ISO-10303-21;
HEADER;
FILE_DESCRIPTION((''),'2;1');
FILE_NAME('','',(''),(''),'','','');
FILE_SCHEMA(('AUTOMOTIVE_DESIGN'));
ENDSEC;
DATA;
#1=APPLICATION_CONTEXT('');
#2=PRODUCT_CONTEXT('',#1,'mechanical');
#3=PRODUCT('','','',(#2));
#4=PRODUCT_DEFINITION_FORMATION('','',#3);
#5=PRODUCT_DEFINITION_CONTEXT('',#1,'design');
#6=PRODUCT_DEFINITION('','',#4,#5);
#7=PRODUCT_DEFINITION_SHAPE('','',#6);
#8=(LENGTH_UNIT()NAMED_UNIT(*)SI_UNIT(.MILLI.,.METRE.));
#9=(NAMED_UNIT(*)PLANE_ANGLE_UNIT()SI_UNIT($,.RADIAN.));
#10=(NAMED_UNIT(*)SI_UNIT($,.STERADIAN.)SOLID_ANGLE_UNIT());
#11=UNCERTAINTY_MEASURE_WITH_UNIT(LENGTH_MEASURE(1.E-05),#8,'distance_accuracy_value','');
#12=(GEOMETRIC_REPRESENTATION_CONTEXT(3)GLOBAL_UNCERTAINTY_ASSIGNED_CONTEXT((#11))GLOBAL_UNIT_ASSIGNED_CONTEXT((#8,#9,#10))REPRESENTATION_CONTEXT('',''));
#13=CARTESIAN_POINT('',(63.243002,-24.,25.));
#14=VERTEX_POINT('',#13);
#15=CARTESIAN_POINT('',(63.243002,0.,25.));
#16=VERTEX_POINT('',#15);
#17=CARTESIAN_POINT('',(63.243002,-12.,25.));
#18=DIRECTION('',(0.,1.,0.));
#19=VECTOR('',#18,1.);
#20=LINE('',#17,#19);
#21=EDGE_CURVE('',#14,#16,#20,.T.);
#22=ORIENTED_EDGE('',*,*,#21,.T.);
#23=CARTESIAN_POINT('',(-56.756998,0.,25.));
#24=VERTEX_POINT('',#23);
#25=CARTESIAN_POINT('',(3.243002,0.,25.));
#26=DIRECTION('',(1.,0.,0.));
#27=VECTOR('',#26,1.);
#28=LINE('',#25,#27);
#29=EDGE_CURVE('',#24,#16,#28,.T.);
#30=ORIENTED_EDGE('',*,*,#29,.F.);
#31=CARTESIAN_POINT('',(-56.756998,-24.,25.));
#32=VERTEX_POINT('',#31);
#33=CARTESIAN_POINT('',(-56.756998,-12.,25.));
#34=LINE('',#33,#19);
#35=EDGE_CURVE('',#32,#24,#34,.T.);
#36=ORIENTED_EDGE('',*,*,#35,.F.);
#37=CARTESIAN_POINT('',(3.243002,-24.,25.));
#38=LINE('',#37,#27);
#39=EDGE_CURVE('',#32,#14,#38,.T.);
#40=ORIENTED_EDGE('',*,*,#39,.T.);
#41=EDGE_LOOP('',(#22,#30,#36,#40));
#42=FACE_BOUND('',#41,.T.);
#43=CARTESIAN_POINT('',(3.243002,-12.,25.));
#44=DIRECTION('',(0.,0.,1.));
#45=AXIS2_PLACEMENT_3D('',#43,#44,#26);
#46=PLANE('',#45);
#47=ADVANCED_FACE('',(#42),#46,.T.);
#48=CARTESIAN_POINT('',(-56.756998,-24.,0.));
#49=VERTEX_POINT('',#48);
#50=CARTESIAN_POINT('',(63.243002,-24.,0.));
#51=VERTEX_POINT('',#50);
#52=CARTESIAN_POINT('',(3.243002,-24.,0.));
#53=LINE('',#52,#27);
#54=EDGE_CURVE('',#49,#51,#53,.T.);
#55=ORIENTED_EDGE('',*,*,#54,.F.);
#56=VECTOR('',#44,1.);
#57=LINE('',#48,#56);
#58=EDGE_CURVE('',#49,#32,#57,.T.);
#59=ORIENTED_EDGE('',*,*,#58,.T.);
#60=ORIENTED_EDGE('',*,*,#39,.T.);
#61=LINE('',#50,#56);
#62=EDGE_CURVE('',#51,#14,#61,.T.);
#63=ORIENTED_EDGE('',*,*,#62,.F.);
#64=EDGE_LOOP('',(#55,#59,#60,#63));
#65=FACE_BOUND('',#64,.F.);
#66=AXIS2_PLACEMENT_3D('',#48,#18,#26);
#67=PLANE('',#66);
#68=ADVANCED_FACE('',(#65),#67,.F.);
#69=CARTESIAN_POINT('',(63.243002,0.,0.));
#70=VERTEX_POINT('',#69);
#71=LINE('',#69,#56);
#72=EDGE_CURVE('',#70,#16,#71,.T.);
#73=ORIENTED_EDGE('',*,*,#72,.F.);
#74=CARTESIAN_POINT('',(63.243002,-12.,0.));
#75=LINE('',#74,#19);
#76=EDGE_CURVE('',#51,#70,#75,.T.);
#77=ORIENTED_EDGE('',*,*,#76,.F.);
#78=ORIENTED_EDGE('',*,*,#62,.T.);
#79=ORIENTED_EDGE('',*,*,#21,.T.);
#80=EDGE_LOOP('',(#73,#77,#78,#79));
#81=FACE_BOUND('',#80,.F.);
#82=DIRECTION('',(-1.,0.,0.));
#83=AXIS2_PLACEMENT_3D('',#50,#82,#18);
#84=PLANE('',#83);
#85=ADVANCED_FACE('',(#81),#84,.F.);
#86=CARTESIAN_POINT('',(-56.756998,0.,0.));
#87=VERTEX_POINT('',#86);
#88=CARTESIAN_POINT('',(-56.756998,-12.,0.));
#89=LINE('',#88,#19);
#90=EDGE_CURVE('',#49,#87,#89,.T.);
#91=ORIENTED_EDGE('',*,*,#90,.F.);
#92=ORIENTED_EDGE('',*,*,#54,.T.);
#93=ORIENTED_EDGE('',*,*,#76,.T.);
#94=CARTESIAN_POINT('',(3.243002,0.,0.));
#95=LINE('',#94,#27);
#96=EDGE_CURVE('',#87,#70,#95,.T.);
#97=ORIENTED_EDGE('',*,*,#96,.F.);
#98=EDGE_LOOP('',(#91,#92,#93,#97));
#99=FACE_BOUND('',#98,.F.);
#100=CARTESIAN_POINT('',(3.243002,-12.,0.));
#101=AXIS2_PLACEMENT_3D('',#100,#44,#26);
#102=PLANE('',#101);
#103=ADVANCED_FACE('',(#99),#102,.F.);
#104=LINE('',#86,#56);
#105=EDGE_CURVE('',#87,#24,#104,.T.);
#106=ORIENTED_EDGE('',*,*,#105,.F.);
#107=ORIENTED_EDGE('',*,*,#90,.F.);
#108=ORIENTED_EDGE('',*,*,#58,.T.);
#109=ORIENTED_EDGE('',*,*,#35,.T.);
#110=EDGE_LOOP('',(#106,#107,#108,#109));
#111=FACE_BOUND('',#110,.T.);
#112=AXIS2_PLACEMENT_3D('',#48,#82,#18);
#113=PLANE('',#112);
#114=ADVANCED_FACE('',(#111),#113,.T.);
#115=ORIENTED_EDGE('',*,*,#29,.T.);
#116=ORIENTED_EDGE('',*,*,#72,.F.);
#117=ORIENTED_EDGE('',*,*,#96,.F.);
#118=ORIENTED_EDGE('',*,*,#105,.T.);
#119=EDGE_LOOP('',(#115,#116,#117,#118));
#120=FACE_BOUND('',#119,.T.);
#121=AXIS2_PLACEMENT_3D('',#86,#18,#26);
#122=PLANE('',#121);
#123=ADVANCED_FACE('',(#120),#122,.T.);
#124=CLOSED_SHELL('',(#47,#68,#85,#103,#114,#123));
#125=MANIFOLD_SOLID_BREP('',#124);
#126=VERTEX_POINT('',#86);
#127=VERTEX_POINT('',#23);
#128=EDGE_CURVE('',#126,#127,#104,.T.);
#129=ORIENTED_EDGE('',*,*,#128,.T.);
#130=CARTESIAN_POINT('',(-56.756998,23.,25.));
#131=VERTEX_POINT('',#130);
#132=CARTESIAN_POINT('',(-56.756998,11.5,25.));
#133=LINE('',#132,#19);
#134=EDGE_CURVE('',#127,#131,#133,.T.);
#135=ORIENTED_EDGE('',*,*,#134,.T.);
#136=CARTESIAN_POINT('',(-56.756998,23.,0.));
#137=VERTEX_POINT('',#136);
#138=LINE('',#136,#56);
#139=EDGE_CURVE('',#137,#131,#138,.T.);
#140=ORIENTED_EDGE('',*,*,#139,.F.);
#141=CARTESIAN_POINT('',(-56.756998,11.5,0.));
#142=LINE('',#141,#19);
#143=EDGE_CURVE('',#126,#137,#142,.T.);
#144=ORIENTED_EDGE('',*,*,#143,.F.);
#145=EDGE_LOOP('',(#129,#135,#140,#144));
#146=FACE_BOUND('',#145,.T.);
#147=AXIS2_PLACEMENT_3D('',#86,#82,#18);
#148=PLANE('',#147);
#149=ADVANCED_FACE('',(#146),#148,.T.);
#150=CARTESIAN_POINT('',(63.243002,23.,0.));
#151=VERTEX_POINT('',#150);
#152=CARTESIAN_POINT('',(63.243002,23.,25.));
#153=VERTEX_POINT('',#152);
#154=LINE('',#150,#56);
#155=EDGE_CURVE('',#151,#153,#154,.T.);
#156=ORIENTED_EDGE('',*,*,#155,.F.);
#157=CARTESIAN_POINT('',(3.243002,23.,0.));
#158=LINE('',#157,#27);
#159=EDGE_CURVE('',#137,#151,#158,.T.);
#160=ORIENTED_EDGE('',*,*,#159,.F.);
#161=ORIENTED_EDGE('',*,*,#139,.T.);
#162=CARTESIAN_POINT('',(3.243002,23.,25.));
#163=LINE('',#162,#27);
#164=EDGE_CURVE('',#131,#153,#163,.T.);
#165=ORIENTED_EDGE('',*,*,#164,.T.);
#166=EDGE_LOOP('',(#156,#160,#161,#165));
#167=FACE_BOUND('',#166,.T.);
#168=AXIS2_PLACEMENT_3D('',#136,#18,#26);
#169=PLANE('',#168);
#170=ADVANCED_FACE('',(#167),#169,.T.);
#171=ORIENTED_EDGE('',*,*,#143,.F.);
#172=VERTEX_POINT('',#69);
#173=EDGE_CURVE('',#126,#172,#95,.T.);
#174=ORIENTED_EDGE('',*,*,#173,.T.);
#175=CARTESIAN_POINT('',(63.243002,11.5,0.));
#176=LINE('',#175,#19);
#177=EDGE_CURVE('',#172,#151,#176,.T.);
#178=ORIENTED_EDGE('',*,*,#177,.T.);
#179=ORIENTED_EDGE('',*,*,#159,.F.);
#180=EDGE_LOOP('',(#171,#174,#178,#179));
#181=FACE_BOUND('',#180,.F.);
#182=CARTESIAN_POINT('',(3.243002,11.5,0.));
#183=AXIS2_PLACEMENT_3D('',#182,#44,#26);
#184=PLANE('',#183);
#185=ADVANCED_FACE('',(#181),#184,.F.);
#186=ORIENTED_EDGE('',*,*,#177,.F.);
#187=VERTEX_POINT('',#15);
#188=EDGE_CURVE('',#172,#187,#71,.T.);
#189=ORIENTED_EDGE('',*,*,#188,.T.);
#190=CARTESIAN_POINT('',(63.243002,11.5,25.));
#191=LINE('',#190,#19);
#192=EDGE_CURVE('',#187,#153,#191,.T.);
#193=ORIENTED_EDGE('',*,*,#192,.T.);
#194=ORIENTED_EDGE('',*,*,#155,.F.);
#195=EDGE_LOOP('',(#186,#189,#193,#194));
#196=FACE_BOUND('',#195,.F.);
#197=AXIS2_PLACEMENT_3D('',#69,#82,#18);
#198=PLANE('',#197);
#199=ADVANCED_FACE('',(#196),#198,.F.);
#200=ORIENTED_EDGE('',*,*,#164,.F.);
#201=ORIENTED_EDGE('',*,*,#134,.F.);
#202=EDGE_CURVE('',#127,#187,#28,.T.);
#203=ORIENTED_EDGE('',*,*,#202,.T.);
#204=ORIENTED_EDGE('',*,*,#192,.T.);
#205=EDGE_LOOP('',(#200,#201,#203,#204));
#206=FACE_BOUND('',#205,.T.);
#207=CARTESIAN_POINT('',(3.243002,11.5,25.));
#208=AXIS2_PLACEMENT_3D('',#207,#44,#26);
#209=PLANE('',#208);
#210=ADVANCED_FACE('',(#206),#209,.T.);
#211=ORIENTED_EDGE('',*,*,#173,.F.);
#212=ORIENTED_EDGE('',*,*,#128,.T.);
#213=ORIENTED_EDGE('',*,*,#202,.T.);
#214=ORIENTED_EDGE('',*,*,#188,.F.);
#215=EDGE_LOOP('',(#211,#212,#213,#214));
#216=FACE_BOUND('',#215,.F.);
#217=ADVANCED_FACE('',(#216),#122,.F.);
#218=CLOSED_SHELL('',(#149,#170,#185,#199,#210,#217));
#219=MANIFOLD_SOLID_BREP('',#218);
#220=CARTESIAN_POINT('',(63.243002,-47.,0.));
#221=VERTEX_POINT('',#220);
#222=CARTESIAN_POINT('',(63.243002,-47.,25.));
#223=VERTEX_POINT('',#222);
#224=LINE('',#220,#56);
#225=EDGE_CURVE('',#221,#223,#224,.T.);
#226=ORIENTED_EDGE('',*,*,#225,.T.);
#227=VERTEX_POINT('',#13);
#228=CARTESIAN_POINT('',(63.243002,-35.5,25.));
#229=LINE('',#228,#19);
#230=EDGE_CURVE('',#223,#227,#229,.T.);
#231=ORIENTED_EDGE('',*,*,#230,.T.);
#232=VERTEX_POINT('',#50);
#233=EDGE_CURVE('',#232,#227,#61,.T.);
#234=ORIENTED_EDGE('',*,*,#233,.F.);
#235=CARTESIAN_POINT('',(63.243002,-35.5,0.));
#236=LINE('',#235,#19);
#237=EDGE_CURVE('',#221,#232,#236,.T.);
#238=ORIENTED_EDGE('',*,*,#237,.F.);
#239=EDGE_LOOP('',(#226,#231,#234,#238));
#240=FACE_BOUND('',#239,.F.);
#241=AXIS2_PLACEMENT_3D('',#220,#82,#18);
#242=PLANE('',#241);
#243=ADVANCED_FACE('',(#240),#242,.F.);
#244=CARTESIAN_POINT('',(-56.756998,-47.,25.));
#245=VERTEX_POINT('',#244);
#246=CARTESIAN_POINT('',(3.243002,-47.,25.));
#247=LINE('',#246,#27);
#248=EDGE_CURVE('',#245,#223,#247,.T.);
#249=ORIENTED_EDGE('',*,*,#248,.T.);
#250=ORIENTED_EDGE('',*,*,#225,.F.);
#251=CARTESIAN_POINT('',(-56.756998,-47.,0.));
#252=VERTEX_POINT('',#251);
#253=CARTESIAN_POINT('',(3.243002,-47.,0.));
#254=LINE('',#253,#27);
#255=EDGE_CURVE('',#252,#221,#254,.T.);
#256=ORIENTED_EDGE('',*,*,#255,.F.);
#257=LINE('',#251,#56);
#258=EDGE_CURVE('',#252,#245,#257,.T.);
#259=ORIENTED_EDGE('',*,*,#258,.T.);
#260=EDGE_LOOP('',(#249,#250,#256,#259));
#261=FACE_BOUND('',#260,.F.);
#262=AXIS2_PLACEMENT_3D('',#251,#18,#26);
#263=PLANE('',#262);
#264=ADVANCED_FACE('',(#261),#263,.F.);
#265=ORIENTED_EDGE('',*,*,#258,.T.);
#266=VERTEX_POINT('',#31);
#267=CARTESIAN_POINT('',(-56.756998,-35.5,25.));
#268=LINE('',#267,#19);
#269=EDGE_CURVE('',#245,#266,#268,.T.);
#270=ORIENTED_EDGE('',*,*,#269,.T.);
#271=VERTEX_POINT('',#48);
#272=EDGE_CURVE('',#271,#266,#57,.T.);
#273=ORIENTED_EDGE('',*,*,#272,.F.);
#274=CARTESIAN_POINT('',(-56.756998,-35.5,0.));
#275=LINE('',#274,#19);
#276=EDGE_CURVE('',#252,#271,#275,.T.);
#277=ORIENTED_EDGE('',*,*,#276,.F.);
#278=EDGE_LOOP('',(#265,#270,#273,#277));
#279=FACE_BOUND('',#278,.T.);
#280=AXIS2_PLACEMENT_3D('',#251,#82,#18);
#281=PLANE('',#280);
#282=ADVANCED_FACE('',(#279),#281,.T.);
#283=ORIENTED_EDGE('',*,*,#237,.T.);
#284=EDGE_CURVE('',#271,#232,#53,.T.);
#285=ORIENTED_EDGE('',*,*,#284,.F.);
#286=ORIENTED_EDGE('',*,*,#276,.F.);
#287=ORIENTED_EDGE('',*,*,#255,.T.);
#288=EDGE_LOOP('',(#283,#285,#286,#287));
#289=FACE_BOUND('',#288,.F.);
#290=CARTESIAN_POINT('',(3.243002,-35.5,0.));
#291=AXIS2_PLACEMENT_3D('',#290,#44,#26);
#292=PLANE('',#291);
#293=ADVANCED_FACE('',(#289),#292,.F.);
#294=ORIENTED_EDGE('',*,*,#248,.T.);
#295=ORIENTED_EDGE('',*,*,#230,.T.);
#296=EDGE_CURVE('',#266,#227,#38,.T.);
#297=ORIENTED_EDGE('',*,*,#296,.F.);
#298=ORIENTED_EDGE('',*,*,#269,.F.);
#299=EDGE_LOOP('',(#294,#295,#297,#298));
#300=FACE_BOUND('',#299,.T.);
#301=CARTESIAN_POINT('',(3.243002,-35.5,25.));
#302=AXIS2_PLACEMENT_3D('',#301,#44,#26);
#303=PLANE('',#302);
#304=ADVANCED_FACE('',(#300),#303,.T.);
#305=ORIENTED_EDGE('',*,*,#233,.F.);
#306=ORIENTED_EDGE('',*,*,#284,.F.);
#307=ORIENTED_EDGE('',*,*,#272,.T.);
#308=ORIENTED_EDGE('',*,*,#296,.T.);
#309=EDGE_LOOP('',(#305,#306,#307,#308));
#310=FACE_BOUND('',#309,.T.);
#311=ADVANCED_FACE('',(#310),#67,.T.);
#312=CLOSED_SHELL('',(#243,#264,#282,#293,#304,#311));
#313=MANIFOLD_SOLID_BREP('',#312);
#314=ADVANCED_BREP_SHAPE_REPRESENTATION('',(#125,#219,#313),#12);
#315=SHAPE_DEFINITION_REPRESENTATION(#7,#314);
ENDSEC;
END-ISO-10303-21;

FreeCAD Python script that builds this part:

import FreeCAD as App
import Part
import Sketcher

doc = App.newDocument("Part")
body = doc.addObject("PartDesign::Body", "Body")
body.AllowCompound = True

# Sketch on XY plane
sketch1 = body.newObject("Sketcher::SketchObject", "Sketch")
sketch1.AttachmentSupport = (doc.getObject("XY_Plane"), [""])
sketch1.MapMode = "FlatFace"
sketch1.addGeometry([
    Part.LineSegment(App.Vector(-56.756998, -24, 0), App.Vector(-56.756998, -47, 0)),  # 0
    Part.LineSegment(App.Vector(-56.756998, -47, 0), App.Vector(63.243002, -47, 0)),  # 1
    Part.LineSegment(App.Vector(63.243002, -47, 0), App.Vector(63.243002, -24, 0)),  # 2
    Part.LineSegment(App.Vector(63.243002, -24, 0), App.Vector(-56.756998, -24, 0)),  # 3
    Part.LineSegment(App.Vector(-56.756998, 23, 0), App.Vector(-56.756998, 0, 0)),  # 4
    Part.LineSegment(App.Vector(-56.756998, 0, 0), App.Vector(63.243002, 0, 0)),  # 5
    Part.LineSegment(App.Vector(63.243002, 0, 0), App.Vector(63.243002, 23, 0)),  # 6
    Part.LineSegment(App.Vector(63.243002, 23, 0), App.Vector(-56.756998, 23, 0)),  # 7
], False)
sketch1.addConstraint([
    Sketcher.Constraint("Coincident", 0, 2, 1, 1),
    Sketcher.Constraint("Coincident", 1, 2, 2, 1),
    Sketcher.Constraint("Coincident", 2, 2, 3, 1),
    Sketcher.Constraint("Coincident", 3, 2, 0, 1),
    Sketcher.Constraint("Coincident", 4, 2, 5, 1),
    Sketcher.Constraint("Coincident", 5, 2, 6, 1),
    Sketcher.Constraint("Coincident", 6, 2, 7, 1),
    Sketcher.Constraint("Coincident", 7, 2, 4, 1),
    Sketcher.Constraint("Vertical", 0),
    Sketcher.Constraint("Horizontal", 1),
    Sketcher.Constraint("Vertical", 2),
    Sketcher.Constraint("Horizontal", 3),
    Sketcher.Constraint("Vertical", 4),
    Sketcher.Constraint("Horizontal", 5),
    Sketcher.Constraint("Vertical", 6),
    Sketcher.Constraint("Horizontal", 7),
    Sketcher.Constraint("PointOnObject", 4, 2, -1),
    Sketcher.Constraint("Vertical", 3, 2, 4, 2),
    Sketcher.Constraint("Vertical", 2, 2, 5, 2),
    Sketcher.Constraint("Equal", 2, 4),
    Sketcher.Constraint("DistanceX", 1, 1, 1, 2, 120.0),
    Sketcher.Constraint("DistanceY", 0, 2, 0, 1, 23.0),
    Sketcher.Constraint("DistanceY", 0, 2, -1, 1, 47.0),
    Sketcher.Constraint("DistanceX", 0, 2, -1, 1, 56.756998),
])
pad1 = body.newObject("PartDesign::Pad", "Pad")
pad1.Profile = sketch1
pad1.Length = 25
body2 = doc.addObject("PartDesign::Body", "Body001")

# Sketch on XY plane
sketch2 = body2.newObject("Sketcher::SketchObject", "Sketch001")
sketch2.AttachmentSupport = (doc.getObject("XY_Plane001"), [""])
sketch2.MapMode = "FlatFace"
sketch2.addGeometry([
    Part.LineSegment(App.Vector(-56.756998, 0, 0), App.Vector(-56.756998, -24, 0)),
    Part.LineSegment(App.Vector(-56.756998, -24, 0), App.Vector(63.243002, -24, 0)),
    Part.LineSegment(App.Vector(63.243002, -24, 0), App.Vector(63.243002, 0, 0)),
    Part.LineSegment(App.Vector(63.243002, 0, 0), App.Vector(-56.756998, 0, 0)),
], False)
sketch2.addConstraint([
    Sketcher.Constraint("Coincident", 0, 2, 1, 1),
    Sketcher.Constraint("Coincident", 1, 2, 2, 1),
    Sketcher.Constraint("Coincident", 2, 2, 3, 1),
    Sketcher.Constraint("Coincident", 3, 2, 0, 1),
    Sketcher.Constraint("Vertical", 0),
    Sketcher.Constraint("Horizontal", 1),
    Sketcher.Constraint("Vertical", 2),
    Sketcher.Constraint("Horizontal", 3),
    Sketcher.Constraint("PointOnObject", 2, 2, -1),
    Sketcher.Constraint("DistanceX", 1, 1, 1, 2, 120.0),
    Sketcher.Constraint("DistanceY", 0, 2, 0, 1, 24.0),
    Sketcher.Constraint("DistanceX", 0, 2, -1, 1, 56.756998),
])
pad2 = body2.newObject("PartDesign::Pad", "Pad001")
pad2.Profile = sketch2
pad2.Length = 25

doc.recompute()
